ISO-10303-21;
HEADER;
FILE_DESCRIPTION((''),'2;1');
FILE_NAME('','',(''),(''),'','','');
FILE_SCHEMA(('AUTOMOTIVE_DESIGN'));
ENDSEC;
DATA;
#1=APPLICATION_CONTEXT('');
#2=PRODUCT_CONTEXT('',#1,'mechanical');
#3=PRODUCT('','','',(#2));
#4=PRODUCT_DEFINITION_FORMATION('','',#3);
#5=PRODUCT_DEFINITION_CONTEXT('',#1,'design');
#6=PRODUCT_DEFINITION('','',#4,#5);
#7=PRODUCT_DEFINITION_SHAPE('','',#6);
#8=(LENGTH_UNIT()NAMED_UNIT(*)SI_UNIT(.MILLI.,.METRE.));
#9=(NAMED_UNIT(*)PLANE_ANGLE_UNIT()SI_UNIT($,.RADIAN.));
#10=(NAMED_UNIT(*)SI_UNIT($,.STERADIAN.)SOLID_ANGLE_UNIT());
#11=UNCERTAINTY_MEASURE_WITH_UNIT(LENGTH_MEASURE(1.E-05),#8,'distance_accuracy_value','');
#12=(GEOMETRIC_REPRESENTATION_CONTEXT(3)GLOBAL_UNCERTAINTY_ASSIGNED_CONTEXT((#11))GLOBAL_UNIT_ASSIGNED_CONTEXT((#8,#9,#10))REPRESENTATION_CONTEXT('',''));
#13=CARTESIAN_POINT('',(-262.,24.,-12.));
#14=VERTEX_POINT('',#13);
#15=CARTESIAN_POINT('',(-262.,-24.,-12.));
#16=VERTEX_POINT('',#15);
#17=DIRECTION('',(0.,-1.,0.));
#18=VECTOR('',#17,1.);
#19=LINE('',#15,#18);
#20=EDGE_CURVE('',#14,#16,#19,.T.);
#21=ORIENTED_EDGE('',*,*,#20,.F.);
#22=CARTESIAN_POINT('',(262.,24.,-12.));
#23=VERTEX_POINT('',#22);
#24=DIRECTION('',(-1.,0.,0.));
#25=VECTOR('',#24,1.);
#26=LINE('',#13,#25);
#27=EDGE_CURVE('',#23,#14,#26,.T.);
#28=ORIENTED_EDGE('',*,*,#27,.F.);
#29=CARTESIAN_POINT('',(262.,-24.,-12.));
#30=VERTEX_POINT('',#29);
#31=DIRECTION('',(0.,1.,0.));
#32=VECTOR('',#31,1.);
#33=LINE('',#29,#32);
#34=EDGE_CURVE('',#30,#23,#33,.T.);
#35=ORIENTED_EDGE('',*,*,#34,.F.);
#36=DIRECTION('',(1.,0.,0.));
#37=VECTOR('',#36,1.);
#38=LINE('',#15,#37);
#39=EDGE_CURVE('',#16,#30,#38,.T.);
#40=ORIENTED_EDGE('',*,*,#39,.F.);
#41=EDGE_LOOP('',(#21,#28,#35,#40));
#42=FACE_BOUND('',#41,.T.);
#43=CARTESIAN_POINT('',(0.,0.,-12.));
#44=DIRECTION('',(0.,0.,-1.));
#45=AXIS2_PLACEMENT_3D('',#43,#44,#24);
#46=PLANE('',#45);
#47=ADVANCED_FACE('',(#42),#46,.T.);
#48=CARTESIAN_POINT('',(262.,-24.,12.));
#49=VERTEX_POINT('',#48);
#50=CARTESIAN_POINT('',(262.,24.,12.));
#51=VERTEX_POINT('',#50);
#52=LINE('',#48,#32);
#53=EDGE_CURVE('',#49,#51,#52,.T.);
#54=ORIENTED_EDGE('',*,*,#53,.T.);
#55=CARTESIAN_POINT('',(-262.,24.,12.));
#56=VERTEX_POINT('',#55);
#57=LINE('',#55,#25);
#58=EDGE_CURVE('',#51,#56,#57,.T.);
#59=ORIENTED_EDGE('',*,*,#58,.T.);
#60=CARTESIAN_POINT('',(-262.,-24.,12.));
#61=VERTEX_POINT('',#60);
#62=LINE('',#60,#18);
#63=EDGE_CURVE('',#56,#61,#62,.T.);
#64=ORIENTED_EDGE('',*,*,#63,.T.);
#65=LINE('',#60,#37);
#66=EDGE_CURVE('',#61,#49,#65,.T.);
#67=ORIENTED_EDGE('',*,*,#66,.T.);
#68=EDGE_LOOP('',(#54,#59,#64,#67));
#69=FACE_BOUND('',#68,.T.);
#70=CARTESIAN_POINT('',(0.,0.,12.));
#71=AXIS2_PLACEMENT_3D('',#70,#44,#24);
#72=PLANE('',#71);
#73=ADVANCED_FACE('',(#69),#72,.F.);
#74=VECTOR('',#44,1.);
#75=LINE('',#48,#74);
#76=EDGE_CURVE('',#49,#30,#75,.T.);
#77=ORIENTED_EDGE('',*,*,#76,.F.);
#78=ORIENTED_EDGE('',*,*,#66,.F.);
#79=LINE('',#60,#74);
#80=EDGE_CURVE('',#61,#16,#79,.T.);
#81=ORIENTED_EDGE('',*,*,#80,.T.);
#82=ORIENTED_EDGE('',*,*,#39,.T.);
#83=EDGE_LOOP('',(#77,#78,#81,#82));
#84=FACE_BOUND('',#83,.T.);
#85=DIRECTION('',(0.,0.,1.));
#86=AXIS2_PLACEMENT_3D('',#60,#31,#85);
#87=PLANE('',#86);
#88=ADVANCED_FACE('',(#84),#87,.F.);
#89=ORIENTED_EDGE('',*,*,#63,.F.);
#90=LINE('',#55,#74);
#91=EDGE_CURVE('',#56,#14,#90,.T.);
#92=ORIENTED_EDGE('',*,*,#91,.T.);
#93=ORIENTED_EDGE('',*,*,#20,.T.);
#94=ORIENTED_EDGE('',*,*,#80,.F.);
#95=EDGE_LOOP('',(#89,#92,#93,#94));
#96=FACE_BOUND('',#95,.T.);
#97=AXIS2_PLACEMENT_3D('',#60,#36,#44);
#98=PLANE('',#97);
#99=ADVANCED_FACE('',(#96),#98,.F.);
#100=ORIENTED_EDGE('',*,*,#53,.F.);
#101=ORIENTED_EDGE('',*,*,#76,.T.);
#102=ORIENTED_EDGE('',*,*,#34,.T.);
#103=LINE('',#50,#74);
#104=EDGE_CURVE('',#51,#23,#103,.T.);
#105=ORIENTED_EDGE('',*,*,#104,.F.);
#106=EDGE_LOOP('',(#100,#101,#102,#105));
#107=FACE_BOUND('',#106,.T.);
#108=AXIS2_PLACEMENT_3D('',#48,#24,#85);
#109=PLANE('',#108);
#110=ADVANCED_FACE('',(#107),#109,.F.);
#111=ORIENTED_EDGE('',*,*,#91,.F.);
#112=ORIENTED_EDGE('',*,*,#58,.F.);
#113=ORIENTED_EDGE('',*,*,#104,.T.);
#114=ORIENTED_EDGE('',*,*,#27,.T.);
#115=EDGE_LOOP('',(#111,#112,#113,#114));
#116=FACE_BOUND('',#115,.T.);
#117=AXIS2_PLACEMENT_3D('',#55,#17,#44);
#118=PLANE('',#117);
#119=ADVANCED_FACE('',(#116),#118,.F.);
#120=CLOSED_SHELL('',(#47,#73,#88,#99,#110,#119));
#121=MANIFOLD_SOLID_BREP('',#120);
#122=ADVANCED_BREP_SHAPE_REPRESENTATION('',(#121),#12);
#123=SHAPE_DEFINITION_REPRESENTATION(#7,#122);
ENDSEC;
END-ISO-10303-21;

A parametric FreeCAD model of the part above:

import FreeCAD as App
import Part
import Sketcher


def add_polygon(sketch, points):
    """Adds a closed chain of lines whose ends are joined by coincident constraints."""
    first, n = sketch.GeometryCount, len(points)
    for a, b in zip(points, points[1:] + points[:1]):
        sketch.addGeometry(Part.LineSegment(App.Vector(*a, 0), App.Vector(*b, 0)), False)
    for i in range(n):
        sketch.addConstraint(Sketcher.Constraint("Coincident", first + i, 2, first + (i + 1) % n, 1))

doc = App.newDocument("Part")
body = doc.addObject("PartDesign::Body", "Body")

# Sketch on XY plane
sketch1 = doc.addObject("Sketcher::SketchObject", "Sketch")
body.addObject(sketch1)
sketch1.AttachmentSupport = (doc.XY_Plane, [""])
sketch1.MapMode = "FlatFace"
add_polygon(sketch1, [(-262, 24), (-262, -24), (262, -24), (262, 24)])  # lines 0-3
sketch1.addConstraint([
    Sketcher.Constraint("Vertical", 0),
    Sketcher.Constraint("Horizontal", 1),
    Sketcher.Constraint("Vertical", 2),
    Sketcher.Constraint("Horizontal", 3),
    Sketcher.Constraint("Symmetric", 0, 2, 2, 2, -1, 1),
    Sketcher.Constraint("DistanceX", 1, 1, 1, 2, 524.0),
    Sketcher.Constraint("DistanceY", 0, 2, 0, 1, 48.0),
])
pad1 = doc.addObject("PartDesign::Pad", "Pad")
body.addObject(pad1)
pad1.Profile = sketch1
pad1.Length = 24
pad1.Midplane = True

doc.recompute()
